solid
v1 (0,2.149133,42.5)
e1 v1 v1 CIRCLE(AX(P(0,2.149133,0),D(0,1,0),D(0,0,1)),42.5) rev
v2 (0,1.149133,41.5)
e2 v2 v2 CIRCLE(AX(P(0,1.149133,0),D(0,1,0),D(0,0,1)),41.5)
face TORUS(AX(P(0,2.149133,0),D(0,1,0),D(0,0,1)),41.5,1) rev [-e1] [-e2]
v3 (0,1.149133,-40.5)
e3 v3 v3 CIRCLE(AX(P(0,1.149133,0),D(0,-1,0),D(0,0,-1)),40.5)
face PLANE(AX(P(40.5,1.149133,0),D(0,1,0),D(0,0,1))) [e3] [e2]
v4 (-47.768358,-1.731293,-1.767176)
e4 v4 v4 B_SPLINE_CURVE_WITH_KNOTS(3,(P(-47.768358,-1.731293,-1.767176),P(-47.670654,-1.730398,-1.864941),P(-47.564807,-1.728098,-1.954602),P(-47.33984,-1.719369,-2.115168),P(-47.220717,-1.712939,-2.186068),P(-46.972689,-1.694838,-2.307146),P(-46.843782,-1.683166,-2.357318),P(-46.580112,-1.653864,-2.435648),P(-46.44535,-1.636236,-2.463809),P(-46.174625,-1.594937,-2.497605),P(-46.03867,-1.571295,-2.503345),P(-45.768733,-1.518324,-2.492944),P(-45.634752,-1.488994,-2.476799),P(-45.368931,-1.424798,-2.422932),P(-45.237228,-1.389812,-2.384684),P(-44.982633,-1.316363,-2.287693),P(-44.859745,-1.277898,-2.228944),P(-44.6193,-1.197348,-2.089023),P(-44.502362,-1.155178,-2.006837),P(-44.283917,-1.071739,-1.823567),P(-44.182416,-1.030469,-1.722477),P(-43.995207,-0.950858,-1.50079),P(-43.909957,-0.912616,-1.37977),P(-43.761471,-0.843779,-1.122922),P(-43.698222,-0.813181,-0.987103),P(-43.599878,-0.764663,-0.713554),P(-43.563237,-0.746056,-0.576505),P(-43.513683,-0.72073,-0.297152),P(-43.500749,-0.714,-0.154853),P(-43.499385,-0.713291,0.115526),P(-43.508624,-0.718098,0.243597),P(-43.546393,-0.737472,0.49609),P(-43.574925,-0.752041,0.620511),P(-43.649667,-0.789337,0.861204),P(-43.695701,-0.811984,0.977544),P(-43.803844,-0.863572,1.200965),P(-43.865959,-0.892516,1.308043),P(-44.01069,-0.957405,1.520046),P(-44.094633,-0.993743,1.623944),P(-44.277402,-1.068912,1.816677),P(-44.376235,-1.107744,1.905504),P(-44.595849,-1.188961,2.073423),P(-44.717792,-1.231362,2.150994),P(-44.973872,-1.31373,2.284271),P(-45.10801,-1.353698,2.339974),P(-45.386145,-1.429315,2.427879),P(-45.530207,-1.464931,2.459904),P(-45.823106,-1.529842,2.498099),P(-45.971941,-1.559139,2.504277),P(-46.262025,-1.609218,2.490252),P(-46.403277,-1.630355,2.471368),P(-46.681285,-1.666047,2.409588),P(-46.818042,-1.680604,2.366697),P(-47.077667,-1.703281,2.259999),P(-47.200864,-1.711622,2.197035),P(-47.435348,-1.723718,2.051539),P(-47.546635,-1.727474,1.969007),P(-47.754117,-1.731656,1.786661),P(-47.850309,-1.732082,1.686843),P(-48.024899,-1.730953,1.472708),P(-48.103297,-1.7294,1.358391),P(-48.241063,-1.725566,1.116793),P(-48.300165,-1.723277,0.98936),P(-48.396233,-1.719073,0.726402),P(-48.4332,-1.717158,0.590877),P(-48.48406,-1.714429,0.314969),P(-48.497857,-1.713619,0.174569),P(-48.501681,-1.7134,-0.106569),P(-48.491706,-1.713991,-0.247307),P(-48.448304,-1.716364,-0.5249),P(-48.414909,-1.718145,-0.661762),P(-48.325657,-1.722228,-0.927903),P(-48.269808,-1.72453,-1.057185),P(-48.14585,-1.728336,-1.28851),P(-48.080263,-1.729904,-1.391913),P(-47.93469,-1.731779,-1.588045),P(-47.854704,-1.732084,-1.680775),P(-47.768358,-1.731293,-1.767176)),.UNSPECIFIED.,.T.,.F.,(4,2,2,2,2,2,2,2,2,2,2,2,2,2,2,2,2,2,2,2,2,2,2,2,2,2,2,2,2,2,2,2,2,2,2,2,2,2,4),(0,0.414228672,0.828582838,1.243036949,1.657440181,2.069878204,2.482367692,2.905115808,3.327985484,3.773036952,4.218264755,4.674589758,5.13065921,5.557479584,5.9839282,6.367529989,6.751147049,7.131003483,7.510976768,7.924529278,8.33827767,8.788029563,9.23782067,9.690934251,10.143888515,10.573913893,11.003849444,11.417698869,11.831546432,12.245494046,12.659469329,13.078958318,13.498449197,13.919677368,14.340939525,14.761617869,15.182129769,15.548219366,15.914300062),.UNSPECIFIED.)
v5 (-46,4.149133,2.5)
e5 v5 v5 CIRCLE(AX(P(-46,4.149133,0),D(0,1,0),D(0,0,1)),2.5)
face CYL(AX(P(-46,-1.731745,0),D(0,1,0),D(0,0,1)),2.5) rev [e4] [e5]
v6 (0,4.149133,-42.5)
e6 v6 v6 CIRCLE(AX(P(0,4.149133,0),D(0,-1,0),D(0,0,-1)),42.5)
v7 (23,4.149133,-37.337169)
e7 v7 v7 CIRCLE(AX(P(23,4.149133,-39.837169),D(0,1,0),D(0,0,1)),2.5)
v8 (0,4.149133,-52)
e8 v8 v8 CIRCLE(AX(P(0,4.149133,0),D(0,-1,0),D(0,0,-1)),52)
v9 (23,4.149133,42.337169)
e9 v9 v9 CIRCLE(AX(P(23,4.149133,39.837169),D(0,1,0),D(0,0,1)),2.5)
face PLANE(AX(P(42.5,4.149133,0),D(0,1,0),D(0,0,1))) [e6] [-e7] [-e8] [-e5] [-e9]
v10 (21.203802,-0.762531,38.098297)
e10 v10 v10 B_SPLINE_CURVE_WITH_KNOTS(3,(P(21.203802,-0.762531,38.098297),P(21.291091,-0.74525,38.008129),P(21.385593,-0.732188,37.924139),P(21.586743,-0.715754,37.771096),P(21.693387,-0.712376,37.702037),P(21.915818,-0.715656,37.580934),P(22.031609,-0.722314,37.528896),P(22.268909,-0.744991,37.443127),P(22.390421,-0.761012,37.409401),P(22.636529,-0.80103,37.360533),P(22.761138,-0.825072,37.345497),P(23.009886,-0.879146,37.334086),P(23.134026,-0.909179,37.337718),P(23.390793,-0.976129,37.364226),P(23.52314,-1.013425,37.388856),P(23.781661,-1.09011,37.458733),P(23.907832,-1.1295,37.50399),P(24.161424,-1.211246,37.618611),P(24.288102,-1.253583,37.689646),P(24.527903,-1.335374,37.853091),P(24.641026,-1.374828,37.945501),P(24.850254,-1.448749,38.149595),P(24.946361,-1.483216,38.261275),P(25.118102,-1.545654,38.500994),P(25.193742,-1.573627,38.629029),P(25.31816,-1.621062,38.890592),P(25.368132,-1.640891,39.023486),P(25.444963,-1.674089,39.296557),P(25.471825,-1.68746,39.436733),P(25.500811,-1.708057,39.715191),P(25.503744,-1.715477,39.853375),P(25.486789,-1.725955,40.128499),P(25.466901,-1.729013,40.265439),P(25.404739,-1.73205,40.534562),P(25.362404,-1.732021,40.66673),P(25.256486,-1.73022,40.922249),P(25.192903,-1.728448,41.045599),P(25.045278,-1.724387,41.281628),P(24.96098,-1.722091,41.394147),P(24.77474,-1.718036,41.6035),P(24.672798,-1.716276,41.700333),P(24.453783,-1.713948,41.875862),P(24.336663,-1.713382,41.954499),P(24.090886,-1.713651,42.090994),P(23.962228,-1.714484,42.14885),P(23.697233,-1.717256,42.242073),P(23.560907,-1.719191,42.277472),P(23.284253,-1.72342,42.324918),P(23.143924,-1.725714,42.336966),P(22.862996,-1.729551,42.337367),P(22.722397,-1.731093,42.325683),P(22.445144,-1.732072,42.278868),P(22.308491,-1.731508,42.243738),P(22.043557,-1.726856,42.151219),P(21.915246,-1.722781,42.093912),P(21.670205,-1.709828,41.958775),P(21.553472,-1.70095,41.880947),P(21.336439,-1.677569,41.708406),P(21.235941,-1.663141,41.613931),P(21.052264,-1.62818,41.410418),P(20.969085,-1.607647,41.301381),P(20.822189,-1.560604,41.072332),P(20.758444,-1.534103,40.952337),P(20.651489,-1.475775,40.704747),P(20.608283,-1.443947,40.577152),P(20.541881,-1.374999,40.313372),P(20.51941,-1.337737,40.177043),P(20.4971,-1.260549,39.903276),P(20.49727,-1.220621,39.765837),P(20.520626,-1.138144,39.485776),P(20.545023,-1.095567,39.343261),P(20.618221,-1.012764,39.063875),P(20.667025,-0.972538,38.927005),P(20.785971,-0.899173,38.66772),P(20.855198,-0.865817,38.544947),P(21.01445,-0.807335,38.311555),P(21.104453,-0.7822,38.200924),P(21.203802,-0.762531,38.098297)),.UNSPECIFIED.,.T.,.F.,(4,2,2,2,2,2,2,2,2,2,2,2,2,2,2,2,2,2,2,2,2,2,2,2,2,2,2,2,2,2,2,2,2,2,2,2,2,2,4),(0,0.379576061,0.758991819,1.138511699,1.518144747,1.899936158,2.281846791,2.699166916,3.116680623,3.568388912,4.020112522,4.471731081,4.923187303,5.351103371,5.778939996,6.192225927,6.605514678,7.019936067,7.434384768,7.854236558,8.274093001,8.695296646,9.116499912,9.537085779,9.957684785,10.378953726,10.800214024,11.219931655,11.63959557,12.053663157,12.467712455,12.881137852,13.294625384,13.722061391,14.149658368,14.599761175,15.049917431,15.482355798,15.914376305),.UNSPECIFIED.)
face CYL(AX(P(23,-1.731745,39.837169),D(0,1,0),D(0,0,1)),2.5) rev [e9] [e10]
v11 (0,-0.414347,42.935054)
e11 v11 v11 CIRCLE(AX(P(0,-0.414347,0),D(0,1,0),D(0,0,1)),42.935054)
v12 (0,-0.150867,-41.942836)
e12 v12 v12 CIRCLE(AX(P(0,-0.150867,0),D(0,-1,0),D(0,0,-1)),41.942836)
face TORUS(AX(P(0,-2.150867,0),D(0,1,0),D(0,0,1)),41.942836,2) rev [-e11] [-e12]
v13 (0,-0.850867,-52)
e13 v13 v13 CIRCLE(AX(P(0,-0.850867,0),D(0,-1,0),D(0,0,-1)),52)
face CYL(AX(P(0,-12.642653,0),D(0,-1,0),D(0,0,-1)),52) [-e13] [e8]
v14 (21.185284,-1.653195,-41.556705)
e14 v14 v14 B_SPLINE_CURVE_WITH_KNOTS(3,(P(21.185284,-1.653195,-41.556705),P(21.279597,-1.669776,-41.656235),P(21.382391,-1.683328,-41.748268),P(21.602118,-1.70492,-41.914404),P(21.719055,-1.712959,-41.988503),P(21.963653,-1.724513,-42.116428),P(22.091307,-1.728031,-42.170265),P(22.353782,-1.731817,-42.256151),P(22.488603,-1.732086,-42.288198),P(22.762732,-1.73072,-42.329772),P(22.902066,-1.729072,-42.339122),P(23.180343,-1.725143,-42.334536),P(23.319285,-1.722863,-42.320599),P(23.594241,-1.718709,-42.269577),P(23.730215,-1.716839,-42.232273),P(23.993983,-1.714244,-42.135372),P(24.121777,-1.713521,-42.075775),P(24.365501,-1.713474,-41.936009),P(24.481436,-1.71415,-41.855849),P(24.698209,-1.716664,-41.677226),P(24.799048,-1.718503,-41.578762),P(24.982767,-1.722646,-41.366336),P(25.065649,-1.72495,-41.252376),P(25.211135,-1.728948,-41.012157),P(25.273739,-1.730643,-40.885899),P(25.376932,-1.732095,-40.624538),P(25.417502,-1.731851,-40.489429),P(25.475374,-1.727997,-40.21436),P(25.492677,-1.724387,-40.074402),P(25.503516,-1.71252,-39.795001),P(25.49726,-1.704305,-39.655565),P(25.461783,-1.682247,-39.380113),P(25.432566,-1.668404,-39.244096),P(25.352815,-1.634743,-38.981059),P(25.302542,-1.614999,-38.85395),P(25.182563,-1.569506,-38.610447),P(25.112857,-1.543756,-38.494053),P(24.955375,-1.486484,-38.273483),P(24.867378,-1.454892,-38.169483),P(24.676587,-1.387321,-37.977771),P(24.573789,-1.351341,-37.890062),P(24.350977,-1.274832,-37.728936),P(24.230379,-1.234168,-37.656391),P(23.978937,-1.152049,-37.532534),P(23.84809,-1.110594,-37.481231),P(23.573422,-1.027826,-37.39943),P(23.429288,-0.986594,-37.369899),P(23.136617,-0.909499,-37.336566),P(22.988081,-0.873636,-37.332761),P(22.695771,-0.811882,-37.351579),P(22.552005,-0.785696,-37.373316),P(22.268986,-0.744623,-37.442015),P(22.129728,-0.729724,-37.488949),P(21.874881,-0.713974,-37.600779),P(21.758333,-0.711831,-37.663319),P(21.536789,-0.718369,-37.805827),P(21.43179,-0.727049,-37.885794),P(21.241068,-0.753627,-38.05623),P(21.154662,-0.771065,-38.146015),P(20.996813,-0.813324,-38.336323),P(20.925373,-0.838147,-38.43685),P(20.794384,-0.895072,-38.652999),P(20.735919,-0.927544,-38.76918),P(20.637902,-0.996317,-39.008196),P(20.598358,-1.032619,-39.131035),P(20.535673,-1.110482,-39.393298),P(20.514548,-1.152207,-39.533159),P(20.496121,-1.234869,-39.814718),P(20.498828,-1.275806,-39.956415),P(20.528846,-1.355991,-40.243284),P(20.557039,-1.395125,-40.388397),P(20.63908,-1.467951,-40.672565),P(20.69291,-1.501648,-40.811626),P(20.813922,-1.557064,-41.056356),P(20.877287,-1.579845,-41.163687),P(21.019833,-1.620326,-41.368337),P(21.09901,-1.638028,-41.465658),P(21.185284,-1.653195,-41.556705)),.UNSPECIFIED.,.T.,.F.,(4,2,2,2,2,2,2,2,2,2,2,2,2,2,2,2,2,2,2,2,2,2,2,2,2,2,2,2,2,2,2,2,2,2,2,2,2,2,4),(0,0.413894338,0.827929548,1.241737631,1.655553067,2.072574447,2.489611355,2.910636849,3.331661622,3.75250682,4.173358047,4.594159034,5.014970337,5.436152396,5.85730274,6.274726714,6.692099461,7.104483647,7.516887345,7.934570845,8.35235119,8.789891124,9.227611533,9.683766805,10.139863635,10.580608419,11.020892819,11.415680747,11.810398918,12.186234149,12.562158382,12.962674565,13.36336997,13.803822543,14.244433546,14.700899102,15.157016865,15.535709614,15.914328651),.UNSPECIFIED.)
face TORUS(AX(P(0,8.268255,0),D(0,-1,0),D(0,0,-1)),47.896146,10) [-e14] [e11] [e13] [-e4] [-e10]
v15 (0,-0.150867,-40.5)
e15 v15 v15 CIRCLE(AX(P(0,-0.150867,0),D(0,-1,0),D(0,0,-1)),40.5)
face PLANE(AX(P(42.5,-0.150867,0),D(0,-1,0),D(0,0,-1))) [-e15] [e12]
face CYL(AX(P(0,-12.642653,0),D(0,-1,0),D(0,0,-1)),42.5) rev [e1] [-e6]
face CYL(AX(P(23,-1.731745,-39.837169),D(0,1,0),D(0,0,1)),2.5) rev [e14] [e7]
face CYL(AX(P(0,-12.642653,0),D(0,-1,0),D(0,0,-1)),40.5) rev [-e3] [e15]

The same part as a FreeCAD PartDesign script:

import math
import FreeCAD as App
import Part
import Sketcher


def edges_at(feature, points):
    """Names of the edges that pass closest to the given points."""
    edges = feature.Shape.Edges
    near = lambda p: min(range(len(edges)), key=lambda i: edges[i].distToShape(Part.Vertex(*p))[0])
    return sorted({f"Edge{near(p) + 1}" for p in points})

doc = App.newDocument("Part")
body = doc.addObject("PartDesign::Body", "Body")

sketch1 = body.newObject("Sketcher::SketchObject", "Sketch")
sketch1.AttachmentSupport = (doc.getObject("XY_Plane"), [""])
sketch1.MapMode = "FlatFace"
sketch1.addGeometry([
    Part.LineSegment(App.Vector(52, -0.9, 0), App.Vector(52, 4.1, 0)),
    Part.LineSegment(App.Vector(52, 4.1, 0), App.Vector(42.5, 4.1, 0)),
    Part.LineSegment(App.Vector(42.5, 4.1, 0), App.Vector(42.5, 1.1, 0)),
    Part.LineSegment(App.Vector(42.5, 1.1, 0), App.Vector(40.5, 1.1, 0)),
    Part.LineSegment(App.Vector(40.5, 1.1, 0), App.Vector(40.5, -0.2, 0)),
    Part.LineSegment(App.Vector(40.5, -0.2, 0), App.Vector(42.5, -0.2, 0)),
    Part.ArcOfCircle(Part.Circle(App.Vector(47.9, 8.3, 0), App.Vector(0, 0, 1), 10), math.radians(-123), math.radians(-66)),
], False)
sketch1.addConstraint([
    Sketcher.Constraint("Coincident", 0, 2, 1, 1),
    Sketcher.Constraint("Coincident", 1, 2, 2, 1),
    Sketcher.Constraint("Coincident", 2, 2, 3, 1),
    Sketcher.Constraint("Coincident", 3, 2, 4, 1),
    Sketcher.Constraint("Coincident", 4, 2, 5, 1),
    Sketcher.Constraint("Coincident", 5, 2, 6, 1),
    Sketcher.Constraint("Coincident", 6, 2, 0, 1),
    Sketcher.Constraint("Vertical", 0),
    Sketcher.Constraint("Horizontal", 1),
    Sketcher.Constraint("Vertical", 2),
    Sketcher.Constraint("Horizontal", 3),
    Sketcher.Constraint("Vertical", 4),
    Sketcher.Constraint("Horizontal", 5),
    Sketcher.Constraint("Vertical", 2, 2, 5, 2),
    Sketcher.Constraint("Radius", 6, 10.0),
    Sketcher.Constraint("DistanceX", 3, 2, 3, 1, 2.0),
    Sketcher.Constraint("DistanceY", 0, 1, 0, 2, 5.0),
    Sketcher.Constraint("DistanceY", 2, 2, 2, 1, 3.0),
    Sketcher.Constraint("DistanceX", 1, 2, 1, 1, 9.5),
    Sketcher.Constraint("DistanceY", 4, 2, 4, 1, 1.3),
    Sketcher.Constraint("DistanceX", -1, 1, 0, 2, 52.0),
    Sketcher.Constraint("DistanceY", -1, 1, 6, 3, 8.268255),
])
revolution = body.newObject("PartDesign::Revolution", "Revolution")
revolution.Profile = sketch1
revolution.ReferenceAxis = (sketch1, ["V_Axis"])
revolution.Angle = 360
doc.recompute()

fillet = body.newObject("PartDesign::Fillet", "Fillet")
fillet.Base = (revolution, edges_at(revolution, [(0, 1.149, 42.5)]))
fillet.Radius = 1
doc.recompute()

fillet2 = body.newObject("PartDesign::Fillet", "Fillet001")
fillet2.Base = (fillet, edges_at(fillet, [(0, -0.151, 42.5)]))
fillet2.Radius = 2

sketch2 = body.newObject("Sketcher::SketchObject", "Sketch001")
sketch2.AttachmentSupport = (doc.getObject("XZ_Plane"), [""])
sketch2.MapMode = "FlatFace"
sketch2.AttachmentOffset = App.Placement(App.Vector(0, 0, -4.149133), App.Rotation())
sketch2.addGeometry([
    Part.Circle(App.Vector(-46, 0, 0), App.Vector(0, 0, 1), 2.5),
    Part.Circle(App.Vector(23, -39.8, 0), App.Vector(0, 0, 1), 2.5),
    Part.Circle(App.Vector(23, 39.8, 0), App.Vector(0, 0, 1), 2.5),
], False)
sketch2.addConstraint([
    Sketcher.Constraint("Equal", 0, 1),
    Sketcher.Constraint("Equal", 1, 2),
    Sketcher.Constraint("Symmetric", 1, 3, 2, 3, -1),
    Sketcher.Constraint("PointOnObject", 0, 3, -1),
    Sketcher.Constraint("Diameter", 0, 5.0),
    Sketcher.Constraint("DistanceX", 0, 3, -1, 1, 46.0),
    Sketcher.Constraint("DistanceX", -1, 1, 1, 3, 23.0),
    Sketcher.Constraint("DistanceY", 1, 3, -1, 1, 39.837169),
])
pocket1 = body.newObject("PartDesign::Pocket", "Pocket")
pocket1.Profile = sketch2
pocket1.Type = "ThroughAll"
pocket1.Reversed = True

doc.recompute()
